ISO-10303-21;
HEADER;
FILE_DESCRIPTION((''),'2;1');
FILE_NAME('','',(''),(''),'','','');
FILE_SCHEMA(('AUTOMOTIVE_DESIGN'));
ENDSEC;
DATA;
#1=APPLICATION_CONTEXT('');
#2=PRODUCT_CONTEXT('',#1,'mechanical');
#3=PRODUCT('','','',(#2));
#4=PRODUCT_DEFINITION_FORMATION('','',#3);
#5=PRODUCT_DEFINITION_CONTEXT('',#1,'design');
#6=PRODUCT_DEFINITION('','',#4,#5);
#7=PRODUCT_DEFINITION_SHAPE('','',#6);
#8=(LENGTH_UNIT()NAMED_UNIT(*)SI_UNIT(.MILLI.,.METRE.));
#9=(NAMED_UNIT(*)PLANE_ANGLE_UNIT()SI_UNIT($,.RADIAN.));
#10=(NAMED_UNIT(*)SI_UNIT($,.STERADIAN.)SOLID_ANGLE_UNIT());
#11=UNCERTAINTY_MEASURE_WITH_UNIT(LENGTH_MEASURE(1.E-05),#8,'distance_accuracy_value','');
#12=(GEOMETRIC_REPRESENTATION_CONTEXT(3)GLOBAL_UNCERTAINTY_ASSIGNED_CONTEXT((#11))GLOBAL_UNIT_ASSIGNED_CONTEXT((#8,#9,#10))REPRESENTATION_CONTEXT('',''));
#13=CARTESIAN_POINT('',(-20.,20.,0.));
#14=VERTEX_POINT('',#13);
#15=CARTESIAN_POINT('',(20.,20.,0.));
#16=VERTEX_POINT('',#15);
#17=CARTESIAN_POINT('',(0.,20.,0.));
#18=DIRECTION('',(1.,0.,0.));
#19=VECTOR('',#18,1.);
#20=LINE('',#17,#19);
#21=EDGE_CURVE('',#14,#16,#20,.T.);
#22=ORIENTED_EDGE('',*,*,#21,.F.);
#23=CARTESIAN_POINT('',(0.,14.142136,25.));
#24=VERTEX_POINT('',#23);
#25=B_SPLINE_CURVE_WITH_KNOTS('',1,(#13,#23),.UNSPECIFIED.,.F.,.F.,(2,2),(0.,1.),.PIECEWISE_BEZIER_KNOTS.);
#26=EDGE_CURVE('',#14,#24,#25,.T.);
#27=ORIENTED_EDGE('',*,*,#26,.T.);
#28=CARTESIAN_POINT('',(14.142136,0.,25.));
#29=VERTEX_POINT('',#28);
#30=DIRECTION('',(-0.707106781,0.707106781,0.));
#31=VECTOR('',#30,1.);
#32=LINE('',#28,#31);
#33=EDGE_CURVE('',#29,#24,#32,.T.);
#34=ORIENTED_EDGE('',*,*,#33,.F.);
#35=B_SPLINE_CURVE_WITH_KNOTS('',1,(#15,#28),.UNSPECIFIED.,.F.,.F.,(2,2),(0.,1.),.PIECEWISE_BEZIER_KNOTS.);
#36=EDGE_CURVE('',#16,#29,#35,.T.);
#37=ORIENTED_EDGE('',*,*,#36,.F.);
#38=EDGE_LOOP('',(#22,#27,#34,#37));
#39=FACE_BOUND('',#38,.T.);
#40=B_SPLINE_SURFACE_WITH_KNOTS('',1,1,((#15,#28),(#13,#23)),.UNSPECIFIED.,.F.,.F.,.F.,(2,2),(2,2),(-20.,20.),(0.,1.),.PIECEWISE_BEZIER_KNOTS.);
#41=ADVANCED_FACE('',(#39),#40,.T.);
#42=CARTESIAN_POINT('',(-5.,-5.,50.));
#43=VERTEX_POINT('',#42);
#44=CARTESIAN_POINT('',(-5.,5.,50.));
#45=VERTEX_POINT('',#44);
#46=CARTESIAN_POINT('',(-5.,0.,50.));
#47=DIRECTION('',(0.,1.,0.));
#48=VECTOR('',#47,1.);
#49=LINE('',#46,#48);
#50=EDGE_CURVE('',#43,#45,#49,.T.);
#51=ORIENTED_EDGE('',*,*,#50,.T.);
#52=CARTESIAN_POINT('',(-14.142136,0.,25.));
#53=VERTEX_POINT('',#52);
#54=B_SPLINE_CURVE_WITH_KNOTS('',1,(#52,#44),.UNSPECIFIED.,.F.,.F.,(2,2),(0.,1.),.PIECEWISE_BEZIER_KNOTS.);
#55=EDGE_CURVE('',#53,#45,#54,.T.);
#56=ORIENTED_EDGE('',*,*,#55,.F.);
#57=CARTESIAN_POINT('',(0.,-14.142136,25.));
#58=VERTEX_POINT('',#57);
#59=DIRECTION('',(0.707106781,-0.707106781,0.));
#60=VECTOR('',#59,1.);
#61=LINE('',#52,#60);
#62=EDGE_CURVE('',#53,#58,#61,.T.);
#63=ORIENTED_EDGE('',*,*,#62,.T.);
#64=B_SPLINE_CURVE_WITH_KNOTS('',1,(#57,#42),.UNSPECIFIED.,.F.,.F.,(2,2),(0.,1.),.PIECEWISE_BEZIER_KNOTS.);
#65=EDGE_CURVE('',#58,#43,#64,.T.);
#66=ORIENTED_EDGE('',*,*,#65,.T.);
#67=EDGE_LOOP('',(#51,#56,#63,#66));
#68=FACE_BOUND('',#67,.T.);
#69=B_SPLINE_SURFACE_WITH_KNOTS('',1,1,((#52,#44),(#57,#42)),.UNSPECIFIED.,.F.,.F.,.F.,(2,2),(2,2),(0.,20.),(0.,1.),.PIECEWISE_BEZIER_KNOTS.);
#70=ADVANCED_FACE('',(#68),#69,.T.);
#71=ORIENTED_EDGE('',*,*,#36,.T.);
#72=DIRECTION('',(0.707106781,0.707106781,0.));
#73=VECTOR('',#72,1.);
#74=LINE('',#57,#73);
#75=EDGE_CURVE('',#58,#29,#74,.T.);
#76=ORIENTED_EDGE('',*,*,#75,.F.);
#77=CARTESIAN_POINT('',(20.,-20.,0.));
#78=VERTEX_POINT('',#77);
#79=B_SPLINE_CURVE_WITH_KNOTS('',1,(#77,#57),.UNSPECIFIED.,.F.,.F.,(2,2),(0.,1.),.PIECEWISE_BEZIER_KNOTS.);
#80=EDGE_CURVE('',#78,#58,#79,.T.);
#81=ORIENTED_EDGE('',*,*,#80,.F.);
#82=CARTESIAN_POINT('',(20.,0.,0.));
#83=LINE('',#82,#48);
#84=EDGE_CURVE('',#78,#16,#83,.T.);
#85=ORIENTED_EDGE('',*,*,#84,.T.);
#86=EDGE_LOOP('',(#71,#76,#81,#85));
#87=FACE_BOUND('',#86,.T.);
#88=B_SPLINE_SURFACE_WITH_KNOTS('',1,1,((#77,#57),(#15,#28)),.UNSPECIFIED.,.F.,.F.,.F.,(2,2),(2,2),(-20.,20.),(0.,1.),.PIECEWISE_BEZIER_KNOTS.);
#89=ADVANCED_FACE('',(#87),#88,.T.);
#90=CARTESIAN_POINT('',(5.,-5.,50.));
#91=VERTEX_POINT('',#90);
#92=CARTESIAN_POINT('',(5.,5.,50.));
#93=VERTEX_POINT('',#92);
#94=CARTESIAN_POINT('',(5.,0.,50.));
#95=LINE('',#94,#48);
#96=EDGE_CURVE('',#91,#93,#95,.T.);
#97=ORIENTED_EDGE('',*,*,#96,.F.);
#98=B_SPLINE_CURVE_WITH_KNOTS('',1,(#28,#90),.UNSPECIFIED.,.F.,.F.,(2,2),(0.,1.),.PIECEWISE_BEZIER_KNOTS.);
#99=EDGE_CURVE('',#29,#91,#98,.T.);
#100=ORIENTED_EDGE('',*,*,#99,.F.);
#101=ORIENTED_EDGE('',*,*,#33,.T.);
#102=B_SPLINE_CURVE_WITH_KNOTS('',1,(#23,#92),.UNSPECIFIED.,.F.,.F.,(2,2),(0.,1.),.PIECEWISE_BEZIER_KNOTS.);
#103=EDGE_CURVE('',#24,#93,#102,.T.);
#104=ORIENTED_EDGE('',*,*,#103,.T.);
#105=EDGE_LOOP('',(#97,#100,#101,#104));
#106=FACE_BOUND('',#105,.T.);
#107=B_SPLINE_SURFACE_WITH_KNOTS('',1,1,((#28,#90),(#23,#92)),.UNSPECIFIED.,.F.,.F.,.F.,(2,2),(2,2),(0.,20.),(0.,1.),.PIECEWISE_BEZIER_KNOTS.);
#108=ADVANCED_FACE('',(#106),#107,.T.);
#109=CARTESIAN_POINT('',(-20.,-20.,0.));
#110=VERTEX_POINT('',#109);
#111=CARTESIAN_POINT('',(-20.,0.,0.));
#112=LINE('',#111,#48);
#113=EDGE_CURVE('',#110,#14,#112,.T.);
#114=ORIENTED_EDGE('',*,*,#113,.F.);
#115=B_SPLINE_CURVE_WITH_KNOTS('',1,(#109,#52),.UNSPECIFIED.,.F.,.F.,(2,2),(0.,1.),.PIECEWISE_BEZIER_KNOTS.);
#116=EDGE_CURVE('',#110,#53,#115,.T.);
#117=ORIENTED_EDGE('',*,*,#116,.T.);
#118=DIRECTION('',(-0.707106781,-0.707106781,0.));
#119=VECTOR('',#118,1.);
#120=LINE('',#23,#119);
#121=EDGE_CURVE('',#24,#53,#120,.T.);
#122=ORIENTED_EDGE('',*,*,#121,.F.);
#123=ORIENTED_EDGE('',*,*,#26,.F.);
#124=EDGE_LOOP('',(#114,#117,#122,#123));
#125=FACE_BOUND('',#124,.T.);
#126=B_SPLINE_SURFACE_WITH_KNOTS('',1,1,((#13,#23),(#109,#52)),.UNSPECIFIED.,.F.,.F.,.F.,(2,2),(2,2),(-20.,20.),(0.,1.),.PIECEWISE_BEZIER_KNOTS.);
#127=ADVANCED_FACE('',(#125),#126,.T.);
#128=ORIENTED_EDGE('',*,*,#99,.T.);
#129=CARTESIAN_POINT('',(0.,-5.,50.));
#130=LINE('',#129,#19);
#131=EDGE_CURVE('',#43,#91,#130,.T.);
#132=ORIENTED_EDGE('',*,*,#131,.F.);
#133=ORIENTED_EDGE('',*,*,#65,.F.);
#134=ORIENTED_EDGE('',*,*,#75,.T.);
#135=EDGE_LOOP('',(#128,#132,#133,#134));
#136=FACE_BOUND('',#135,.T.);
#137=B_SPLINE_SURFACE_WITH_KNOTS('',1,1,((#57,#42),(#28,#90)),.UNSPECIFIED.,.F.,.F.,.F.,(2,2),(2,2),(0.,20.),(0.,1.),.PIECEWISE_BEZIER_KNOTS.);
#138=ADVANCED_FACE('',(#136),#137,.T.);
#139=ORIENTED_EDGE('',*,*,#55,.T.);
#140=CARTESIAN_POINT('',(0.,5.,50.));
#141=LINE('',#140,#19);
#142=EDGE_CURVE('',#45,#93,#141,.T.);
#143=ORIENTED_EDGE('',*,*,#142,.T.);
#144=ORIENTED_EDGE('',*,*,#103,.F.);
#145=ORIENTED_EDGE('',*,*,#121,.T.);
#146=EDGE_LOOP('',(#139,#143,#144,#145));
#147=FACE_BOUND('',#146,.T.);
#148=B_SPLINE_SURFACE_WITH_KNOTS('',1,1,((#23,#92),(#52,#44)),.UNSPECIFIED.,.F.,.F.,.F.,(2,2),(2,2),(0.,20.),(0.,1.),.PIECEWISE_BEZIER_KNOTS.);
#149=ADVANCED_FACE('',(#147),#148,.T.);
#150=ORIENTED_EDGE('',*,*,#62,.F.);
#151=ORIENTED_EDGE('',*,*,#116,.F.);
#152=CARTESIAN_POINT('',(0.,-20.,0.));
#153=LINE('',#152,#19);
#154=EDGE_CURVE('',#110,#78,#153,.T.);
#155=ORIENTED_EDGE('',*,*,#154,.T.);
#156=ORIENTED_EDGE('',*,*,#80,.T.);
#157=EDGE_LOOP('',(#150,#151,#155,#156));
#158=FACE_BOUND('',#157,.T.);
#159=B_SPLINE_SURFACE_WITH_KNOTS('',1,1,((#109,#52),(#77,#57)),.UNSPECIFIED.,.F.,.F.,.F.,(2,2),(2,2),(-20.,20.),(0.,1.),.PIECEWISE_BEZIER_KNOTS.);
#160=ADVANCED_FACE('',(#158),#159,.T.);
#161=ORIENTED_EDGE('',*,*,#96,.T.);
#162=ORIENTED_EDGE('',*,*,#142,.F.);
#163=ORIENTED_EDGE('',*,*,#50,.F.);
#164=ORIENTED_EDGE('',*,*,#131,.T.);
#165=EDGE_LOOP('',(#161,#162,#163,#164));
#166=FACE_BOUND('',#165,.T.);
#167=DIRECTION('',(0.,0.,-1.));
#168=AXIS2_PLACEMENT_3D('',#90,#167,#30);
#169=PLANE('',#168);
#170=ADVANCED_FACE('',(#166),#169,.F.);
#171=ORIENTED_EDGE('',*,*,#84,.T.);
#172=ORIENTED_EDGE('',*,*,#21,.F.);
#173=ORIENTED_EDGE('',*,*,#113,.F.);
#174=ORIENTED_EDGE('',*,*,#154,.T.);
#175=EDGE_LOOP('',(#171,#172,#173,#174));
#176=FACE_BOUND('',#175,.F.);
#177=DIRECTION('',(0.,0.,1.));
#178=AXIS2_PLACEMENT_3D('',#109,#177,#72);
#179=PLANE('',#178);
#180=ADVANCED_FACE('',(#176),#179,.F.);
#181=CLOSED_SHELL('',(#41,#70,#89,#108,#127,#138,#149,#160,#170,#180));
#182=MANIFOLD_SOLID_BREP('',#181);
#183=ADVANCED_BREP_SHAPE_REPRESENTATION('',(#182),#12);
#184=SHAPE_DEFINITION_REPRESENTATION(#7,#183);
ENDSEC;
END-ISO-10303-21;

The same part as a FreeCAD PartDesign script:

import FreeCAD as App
import Part
import Sketcher
from FreeCAD import Vector


def add_polygon(sketch, points):
    """Adds a closed chain of lines whose ends are joined by coincident constraints."""
    first, n = sketch.GeometryCount, len(points)
    for a, b in zip(points, points[1:] + points[:1]):
        sketch.addGeometry(Part.LineSegment(App.Vector(*a, 0), App.Vector(*b, 0)), False)
    for i in range(n):
        sketch.addConstraint(Sketcher.Constraint("Coincident", first + i, 2, first + (i + 1) % n, 1))

doc = App.newDocument("Part")
body = doc.addObject("PartDesign::Body", "Body")

sketch1 = doc.addObject("Sketcher::SketchObject", "Sketch")
body.addObject(sketch1)
sketch1.AttachmentSupport = (doc.XY_Plane, [""])
sketch1.MapMode = "FlatFace"
add_polygon(sketch1, [(-20, 20), (-20, -20), (20, -20), (20, 20)])
sketch1.addConstraint([
    Sketcher.Constraint("Vertical", 0),
    Sketcher.Constraint("Horizontal", 1),
    Sketcher.Constraint("Vertical", 2),
    Sketcher.Constraint("Horizontal", 3),
    Sketcher.Constraint("Symmetric", 0, 2, 2, 2, -1, 1),
    Sketcher.Constraint("Equal", 3, 0),
    Sketcher.Constraint("DistanceX", 1, 1, 1, 2, 40.0),
])

sketch2 = doc.addObject("Sketcher::SketchObject", "Sketch001")
body.addObject(sketch2)
sketch2.AttachmentSupport = (doc.XY_Plane, [""])
sketch2.MapMode = "FlatFace"
sketch2.AttachmentOffset = App.Placement(Vector(0, 0, 25), App.Rotation())
add_polygon(sketch2, [(0, 14), (-14, 0), (0, -14), (14, 0)])
sketch2.addConstraint([
    Sketcher.Constraint("Symmetric", 0, 2, 2, 2, -1, 1),
    Sketcher.Constraint("Symmetric", 1, 2, 3, 2, -1, 1),
    Sketcher.Constraint("PointOnObject", 0, 2, -1),
    Sketcher.Constraint("PointOnObject", 1, 2, -2),
    Sketcher.Constraint("Perpendicular", 0, 1),
    Sketcher.Constraint("Distance", 0, 20.0),
])

additiveloft = doc.addObject("PartDesign::AdditiveLoft", "AdditiveLoft")
body.addObject(additiveloft)
additiveloft.Profile = sketch1
additiveloft.Sections = [sketch2]

sketch3 = doc.addObject("Sketcher::SketchObject", "Sketch002")
body.addObject(sketch3)
sketch3.AttachmentSupport = (doc.XY_Plane, [""])
sketch3.MapMode = "FlatFace"
sketch3.AttachmentOffset = App.Placement(Vector(0, 0, 25), App.Rotation())
add_polygon(sketch3, [(14, 0), (0, 14), (-14, 0), (0, -14)])
sketch3.addConstraint([
    Sketcher.Constraint("Symmetric", 0, 2, 2, 2, -1, 1),
    Sketcher.Constraint("Symmetric", 1, 2, 3, 2, -1, 1),
    Sketcher.Constraint("PointOnObject", 0, 2, -2),
    Sketcher.Constraint("PointOnObject", 1, 2, -1),
    Sketcher.Constraint("Perpendicular", 0, 1),
    Sketcher.Constraint("Distance", 0, 20.0),
])

sketch4 = doc.addObject("Sketcher::SketchObject", "Sketch003")
body.addObject(sketch4)
sketch4.AttachmentSupport = (doc.XY_Plane, [""])
sketch4.MapMode = "FlatFace"
sketch4.AttachmentOffset = App.Placement(Vector(0, 0, 50), App.Rotation())
add_polygon(sketch4, [(-5, 5), (-5, -5), (5, -5), (5, 5)])
sketch4.addConstraint([
    Sketcher.Constraint("Vertical", 0),
    Sketcher.Constraint("Horizontal", 1),
    Sketcher.Constraint("Vertical", 2),
    Sketcher.Constraint("Horizontal", 3),
    Sketcher.Constraint("Symmetric", 0, 2, 2, 2, -1, 1),
    Sketcher.Constraint("Equal", 3, 0),
    Sketcher.Constraint("DistanceX", 1, 1, 1, 2, 10.0),
])

additiveloft2 = doc.addObject("PartDesign::AdditiveLoft", "AdditiveLoft001")
body.addObject(additiveloft2)
additiveloft2.Profile = sketch3
additiveloft2.Sections = [sketch4]

doc.recompute()
